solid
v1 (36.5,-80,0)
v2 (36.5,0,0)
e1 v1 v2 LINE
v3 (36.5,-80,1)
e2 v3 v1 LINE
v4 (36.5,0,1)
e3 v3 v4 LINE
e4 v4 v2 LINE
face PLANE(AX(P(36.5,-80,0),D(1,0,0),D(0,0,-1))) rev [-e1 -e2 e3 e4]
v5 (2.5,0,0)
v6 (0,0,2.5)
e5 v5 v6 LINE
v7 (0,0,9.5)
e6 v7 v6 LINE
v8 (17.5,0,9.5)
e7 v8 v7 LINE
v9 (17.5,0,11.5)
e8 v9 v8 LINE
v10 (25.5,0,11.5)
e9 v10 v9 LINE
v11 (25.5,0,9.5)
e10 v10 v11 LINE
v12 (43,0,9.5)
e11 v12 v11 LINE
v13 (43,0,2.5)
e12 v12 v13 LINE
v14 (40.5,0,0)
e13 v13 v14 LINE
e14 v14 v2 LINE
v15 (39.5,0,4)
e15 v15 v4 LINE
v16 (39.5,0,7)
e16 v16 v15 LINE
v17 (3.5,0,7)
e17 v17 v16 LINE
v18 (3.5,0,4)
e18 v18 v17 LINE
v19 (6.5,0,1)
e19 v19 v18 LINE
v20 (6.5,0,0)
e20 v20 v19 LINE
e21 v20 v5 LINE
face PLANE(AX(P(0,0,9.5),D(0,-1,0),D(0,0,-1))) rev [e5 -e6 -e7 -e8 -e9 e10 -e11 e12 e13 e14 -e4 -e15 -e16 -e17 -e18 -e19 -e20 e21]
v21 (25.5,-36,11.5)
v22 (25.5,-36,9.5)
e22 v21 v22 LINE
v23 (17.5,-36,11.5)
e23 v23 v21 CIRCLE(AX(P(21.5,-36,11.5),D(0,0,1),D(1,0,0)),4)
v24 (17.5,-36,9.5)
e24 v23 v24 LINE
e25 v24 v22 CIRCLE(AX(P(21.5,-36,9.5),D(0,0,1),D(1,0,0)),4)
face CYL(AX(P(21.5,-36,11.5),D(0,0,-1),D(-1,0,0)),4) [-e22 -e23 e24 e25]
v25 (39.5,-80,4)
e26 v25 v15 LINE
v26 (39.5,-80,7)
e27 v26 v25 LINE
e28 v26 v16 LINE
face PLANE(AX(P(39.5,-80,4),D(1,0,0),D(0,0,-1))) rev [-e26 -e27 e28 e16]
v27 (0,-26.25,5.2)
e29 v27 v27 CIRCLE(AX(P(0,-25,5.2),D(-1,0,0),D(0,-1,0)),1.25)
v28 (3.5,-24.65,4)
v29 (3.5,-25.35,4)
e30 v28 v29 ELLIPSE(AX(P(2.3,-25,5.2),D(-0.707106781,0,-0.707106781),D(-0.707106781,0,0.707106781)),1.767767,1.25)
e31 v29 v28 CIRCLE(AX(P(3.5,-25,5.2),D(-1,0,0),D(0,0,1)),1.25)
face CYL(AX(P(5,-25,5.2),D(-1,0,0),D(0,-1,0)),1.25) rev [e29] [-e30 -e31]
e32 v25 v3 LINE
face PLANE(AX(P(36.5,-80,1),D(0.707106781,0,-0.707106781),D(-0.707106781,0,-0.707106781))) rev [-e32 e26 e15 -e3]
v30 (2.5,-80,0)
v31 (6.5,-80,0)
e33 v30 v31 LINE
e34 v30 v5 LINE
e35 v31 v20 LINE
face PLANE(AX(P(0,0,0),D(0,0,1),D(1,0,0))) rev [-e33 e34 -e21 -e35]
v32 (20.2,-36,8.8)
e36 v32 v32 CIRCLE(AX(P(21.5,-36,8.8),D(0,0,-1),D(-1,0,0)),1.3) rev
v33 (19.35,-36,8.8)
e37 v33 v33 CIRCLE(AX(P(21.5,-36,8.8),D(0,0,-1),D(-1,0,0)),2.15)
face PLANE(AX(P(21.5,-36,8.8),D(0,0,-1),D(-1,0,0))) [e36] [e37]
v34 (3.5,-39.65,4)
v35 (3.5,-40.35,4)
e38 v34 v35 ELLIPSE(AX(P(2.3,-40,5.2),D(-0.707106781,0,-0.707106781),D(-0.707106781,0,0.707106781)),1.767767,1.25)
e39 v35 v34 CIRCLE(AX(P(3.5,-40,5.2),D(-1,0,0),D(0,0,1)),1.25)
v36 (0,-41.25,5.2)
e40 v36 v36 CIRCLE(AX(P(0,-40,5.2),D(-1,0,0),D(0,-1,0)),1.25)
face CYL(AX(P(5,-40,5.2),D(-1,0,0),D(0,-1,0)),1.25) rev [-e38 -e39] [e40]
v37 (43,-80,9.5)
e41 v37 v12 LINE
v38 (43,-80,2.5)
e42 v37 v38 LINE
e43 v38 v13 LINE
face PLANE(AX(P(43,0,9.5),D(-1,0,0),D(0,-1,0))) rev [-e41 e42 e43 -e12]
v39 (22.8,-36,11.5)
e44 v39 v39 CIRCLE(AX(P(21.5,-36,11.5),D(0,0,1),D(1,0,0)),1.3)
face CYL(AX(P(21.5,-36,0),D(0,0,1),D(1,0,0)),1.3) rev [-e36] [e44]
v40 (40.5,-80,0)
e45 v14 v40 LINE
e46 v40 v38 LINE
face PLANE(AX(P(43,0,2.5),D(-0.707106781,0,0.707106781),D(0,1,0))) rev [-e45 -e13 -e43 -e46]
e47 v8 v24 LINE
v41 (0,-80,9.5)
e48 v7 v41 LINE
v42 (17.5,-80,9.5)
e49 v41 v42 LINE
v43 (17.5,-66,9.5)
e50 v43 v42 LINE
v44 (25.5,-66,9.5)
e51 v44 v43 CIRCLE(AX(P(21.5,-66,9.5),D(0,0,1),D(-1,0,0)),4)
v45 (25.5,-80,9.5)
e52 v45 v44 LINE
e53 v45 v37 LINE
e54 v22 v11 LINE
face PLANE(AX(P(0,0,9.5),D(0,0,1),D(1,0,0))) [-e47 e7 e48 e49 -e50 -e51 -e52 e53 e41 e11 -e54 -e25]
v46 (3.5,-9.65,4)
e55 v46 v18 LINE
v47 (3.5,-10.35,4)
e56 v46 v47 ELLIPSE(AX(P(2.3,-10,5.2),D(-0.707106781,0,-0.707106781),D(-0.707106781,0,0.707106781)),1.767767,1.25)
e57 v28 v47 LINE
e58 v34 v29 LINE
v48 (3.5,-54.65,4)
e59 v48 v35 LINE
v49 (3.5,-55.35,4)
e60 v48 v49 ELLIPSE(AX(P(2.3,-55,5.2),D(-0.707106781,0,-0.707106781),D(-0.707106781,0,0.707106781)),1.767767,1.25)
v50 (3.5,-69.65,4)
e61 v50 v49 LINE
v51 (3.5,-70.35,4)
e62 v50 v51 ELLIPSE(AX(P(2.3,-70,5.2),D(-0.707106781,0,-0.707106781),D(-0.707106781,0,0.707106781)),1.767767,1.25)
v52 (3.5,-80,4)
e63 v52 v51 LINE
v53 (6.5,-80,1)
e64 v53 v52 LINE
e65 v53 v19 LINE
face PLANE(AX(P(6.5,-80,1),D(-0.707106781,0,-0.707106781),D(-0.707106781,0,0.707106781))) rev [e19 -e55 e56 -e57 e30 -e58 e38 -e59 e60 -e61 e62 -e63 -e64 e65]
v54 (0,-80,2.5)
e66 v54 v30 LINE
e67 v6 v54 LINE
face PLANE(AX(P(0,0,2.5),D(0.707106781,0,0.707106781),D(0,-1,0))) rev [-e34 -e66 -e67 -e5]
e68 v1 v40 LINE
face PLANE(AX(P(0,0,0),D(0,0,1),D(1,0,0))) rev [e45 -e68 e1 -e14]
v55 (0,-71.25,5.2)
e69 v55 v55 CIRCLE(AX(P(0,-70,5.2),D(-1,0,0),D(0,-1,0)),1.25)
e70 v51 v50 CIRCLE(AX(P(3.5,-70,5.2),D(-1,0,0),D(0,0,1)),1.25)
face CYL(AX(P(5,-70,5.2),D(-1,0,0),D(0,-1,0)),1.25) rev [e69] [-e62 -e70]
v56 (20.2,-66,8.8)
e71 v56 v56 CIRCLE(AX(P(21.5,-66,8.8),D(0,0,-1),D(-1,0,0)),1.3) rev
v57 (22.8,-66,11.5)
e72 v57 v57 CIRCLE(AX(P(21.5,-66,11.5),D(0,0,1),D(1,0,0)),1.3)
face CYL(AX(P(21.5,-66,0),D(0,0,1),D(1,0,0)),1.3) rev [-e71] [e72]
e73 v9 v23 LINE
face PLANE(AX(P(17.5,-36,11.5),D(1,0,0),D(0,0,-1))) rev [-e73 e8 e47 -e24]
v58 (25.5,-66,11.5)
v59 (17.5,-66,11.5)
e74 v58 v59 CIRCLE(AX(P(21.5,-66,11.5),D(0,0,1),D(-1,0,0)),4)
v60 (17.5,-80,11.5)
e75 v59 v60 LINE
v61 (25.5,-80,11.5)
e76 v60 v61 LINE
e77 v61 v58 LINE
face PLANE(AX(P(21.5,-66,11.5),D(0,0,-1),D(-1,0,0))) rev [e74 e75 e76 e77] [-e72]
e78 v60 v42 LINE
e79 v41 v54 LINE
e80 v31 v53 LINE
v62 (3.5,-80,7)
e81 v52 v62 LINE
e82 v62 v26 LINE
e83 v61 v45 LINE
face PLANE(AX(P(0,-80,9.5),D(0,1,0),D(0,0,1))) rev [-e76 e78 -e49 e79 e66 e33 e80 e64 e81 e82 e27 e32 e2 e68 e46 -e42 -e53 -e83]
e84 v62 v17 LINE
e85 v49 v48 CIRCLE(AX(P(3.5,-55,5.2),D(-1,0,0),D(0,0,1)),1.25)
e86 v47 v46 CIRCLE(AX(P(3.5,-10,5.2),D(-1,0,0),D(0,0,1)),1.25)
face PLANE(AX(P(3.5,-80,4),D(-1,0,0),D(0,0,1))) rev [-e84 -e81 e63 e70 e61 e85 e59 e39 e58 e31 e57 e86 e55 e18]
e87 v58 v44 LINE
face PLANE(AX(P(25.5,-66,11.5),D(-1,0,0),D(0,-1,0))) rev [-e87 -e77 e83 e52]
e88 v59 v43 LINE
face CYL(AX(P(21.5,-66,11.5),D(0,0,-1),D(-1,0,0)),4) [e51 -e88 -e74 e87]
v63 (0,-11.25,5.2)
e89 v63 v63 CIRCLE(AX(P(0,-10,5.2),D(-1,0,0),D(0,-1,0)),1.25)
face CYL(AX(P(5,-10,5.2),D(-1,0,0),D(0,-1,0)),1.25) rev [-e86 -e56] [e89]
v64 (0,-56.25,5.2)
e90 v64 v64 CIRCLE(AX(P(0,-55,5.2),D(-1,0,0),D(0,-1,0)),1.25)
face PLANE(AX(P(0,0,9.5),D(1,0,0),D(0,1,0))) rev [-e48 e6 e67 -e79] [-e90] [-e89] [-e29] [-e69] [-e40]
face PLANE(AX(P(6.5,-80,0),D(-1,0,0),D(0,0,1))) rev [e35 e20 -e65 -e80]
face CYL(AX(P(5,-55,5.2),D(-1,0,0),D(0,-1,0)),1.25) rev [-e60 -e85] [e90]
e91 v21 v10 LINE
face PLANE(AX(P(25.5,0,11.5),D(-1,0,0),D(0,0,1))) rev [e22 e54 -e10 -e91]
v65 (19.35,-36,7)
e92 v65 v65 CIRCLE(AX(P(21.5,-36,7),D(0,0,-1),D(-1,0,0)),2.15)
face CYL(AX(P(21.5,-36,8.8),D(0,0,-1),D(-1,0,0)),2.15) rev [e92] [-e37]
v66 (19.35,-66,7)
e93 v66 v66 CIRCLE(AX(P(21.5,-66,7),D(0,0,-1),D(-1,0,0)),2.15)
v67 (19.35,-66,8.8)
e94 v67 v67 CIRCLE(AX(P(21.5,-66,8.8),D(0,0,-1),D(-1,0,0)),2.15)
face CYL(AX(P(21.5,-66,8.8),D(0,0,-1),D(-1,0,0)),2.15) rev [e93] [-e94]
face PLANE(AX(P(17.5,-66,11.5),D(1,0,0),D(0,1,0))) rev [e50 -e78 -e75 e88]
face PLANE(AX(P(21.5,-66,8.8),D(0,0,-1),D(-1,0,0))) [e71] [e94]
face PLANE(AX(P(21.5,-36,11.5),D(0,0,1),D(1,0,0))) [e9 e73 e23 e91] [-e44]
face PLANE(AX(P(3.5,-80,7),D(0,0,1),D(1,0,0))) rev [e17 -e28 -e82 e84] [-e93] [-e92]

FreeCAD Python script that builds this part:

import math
import FreeCAD as App
import Part
import Sketcher


def edges_at(feature, points):
    """Names of the edges that pass closest to the given points."""
    edges = feature.Shape.Edges
    near = lambda p: min(range(len(edges)), key=lambda i: edges[i].distToShape(Part.Vertex(*p))[0])
    return sorted({f"Edge{near(p) + 1}" for p in points})


def add_polygon(sketch, points):
    """Adds a closed chain of lines whose ends are joined by coincident constraints."""
    first, n = sketch.GeometryCount, len(points)
    for a, b in zip(points, points[1:] + points[:1]):
        sketch.addGeometry(Part.LineSegment(App.Vector(*a, 0), App.Vector(*b, 0)), False)
    for i in range(n):
        sketch.addConstraint(Sketcher.Constraint("Coincident", first + i, 2, first + (i + 1) % n, 1))

doc = App.newDocument("Part")
body = doc.addObject("PartDesign::Body", "Body")

# Sketch on XY plane
sketch1 = body.newObject("Sketcher::SketchObject", "Sketch")
sketch1.AttachmentSupport = (doc.getObject("XY_Plane"), [""])
sketch1.MapMode = "FlatFace"
add_polygon(sketch1, [(0, 0), (0, -80), (43, -80), (43, 0)])  # lines 0-3
sketch1.addConstraint([
    Sketcher.Constraint("Vertical", 0),
    Sketcher.Constraint("Horizontal", 1),
    Sketcher.Constraint("Vertical", 2),
    Sketcher.Constraint("Horizontal", 3),
    Sketcher.Constraint("Coincident", 3, 2, -1, 1),
    Sketcher.Constraint("DistanceX", 1, 1, 1, 2, 43.0),
    Sketcher.Constraint("DistanceY", 0, 2, 0, 1, 80.0),
])
pad1 = body.newObject("PartDesign::Pad", "Pad")
pad1.Profile = sketch1
pad1.Length = 9.5

# Sketch on XZ plane
sketch2 = body.newObject("Sketcher::SketchObject", "Sketch001")
sketch2.AttachmentSupport = (doc.getObject("XZ_Plane"), [""])
sketch2.MapMode = "FlatFace"
add_polygon(sketch2, [(6.5, 0), (6.5, 1), (3.5, 4), (3.5, 7), (39.5, 7), (39.5, 4), (36.5, 1), (36.5, 0)])  # lines 0-7
sketch2.addConstraint([
    Sketcher.Constraint("Vertical", 0),
    Sketcher.Constraint("Vertical", 2),
    Sketcher.Constraint("Horizontal", 3),
    Sketcher.Constraint("Vertical", 4),
    Sketcher.Constraint("Vertical", 6),
    Sketcher.Constraint("Horizontal", 7),
    Sketcher.Constraint("PointOnObject", 6, 2, -1),
    Sketcher.Constraint("Perpendicular", 1, 5),
    Sketcher.Constraint("Horizontal", 1, 2, 4, 2),
    Sketcher.Constraint("Horizontal", 0, 2, 5, 2),
    Sketcher.Constraint("Equal", 1, 5),
    Sketcher.Constraint("DistanceX", 3, 1, 3, 2, 36.0),
    Sketcher.Constraint("DistanceX", 7, 2, 7, 1, 30.0),
    Sketcher.Constraint("DistanceY", 0, 1, 0, 2, 1.0),
    Sketcher.Constraint("DistanceY", 2, 1, 2, 2, 3.0),
    Sketcher.Constraint("DistanceX", -1, 1, 0, 2, 6.5),
])
pocket1 = body.newObject("PartDesign::Pocket", "Pocket")
pocket1.Profile = sketch2
pocket1.Type = "ThroughAll"
pocket1.Reversed = True
doc.recompute()

chamfer = body.newObject("PartDesign::Chamfer", "Chamfer")
chamfer.Base = (pocket1, edges_at(pocket1, [(43, -40, 0), (0, -40, 0)]))
chamfer.Size = 2.5

# Sketch on XY plane
sketch3 = body.newObject("Sketcher::SketchObject", "Sketch002")
sketch3.AttachmentSupport = (doc.getObject("XY_Plane"), [""])
sketch3.MapMode = "FlatFace"
sketch3.AttachmentOffset = App.Placement(App.Vector(0, 0, 9.5), App.Rotation())
sketch3.addGeometry([
    Part.LineSegment(App.Vector(17.5, -80, 0), App.Vector(25.5, -80, 0)),  # 0
    Part.LineSegment(App.Vector(25.5, -80, 0), App.Vector(25.5, -66, 0)),  # 1
    Part.ArcOfCircle(Part.Circle(App.Vector(21.5, -66, 0), App.Vector(0, 0, 1), 4), math.radians(0), math.radians(180)),  # 2
    Part.LineSegment(App.Vector(17.5, -66, 0), App.Vector(17.5, -80, 0)),  # 3
    Part.LineSegment(App.Vector(17.5, 0, 0), App.Vector(17.5, -36, 0)),  # 4
    Part.ArcOfCircle(Part.Circle(App.Vector(21.5, -36, 0), App.Vector(0, 0, 1), 4), math.radians(180), math.radians(360)),  # 5
    Part.LineSegment(App.Vector(25.5, -36, 0), App.Vector(25.5, 0, 0)),  # 6
    Part.LineSegment(App.Vector(25.5, 0, 0), App.Vector(17.5, 0, 0)),  # 7
], False)
sketch3.addConstraint([
    Sketcher.Constraint("Coincident", 0, 2, 1, 1),
    Sketcher.Constraint("Tangent", 1, 2, 2, 1),
    Sketcher.Constraint("Tangent", 2, 2, 3, 1),
    Sketcher.Constraint("Coincident", 3, 2, 0, 1),
    Sketcher.Constraint("Tangent", 4, 2, 5, 1),
    Sketcher.Constraint("Tangent", 5, 2, 6, 1),
    Sketcher.Constraint("Coincident", 6, 2, 7, 1),
    Sketcher.Constraint("Coincident", 7, 2, 4, 1),
    Sketcher.Constraint("Horizontal", 0),
    Sketcher.Constraint("Vertical", 1),
    Sketcher.Constraint("Vertical", 3),
    Sketcher.Constraint("Vertical", 4),
    Sketcher.Constraint("Vertical", 6),
    Sketcher.Constraint("Horizontal", 7),
    Sketcher.Constraint("Equal", 2, 5),
    Sketcher.Constraint("PointOnObject", 6, 2, -1),
    Sketcher.Constraint("Vertical", 2, 3, 5, 3),
    Sketcher.Constraint("Radius", 2, 4.0),
    Sketcher.Constraint("DistanceY", 1, 1, 1, 2, 14.0),
    Sketcher.Constraint("DistanceY", 4, 2, 4, 1, 36.0),
    Sketcher.Constraint("DistanceY", 2, 3, -1, 1, 66.0),
    Sketcher.Constraint("DistanceX", -1, 1, 2, 3, 21.5),
])
pad2 = body.newObject("PartDesign::Pad", "Pad001")
pad2.Profile = sketch3
pad2.Length = 2

# Sketch on XY plane
sketch4 = body.newObject("Sketcher::SketchObject", "Sketch003")
sketch4.AttachmentSupport = (doc.getObject("XY_Plane"), [""])
sketch4.MapMode = "FlatFace"
sketch4.AttachmentOffset = App.Placement(App.Vector(0, 0, 11.5), App.Rotation())
sketch4.addGeometry([
    Part.Circle(App.Vector(21.5, -36, 0), App.Vector(0, 0, 1), 1.3),
    Part.Circle(App.Vector(21.5, -66, 0), App.Vector(0, 0, 1), 1.3),
], False)
sketch4.addConstraint([
    Sketcher.Constraint("Equal", 0, 1),
    Sketcher.Constraint("Vertical", 0, 3, 1, 3),
    Sketcher.Constraint("Diameter", 0, 2.6),
    Sketcher.Constraint("DistanceY", 0, 3, -1, 1, 36.0),
    Sketcher.Constraint("DistanceY", 1, 3, -1, 1, 66.0),
    Sketcher.Constraint("DistanceX", -1, 1, 0, 3, 21.5),
])
pocket2 = body.newObject("PartDesign::Pocket", "Pocket001")
pocket2.Profile = sketch4
pocket2.Type = "ThroughAll"

# Sketch on XY plane
sketch5 = body.newObject("Sketcher::SketchObject", "Sketch004")
sketch5.AttachmentSupport = (doc.getObject("XY_Plane"), [""])
sketch5.MapMode = "FlatFace"
sketch5.AttachmentOffset = App.Placement(App.Vector(0, 0, 7), App.Rotation())
sketch5.addGeometry([
    Part.Circle(App.Vector(21.5, -36, 0), App.Vector(0, 0, 1), 2.15),
    Part.Circle(App.Vector(21.5, -66, 0), App.Vector(0, 0, 1), 2.15),
], False)
sketch5.addConstraint([
    Sketcher.Constraint("Equal", 0, 1),
    Sketcher.Constraint("Vertical", 0, 3, 1, 3),
    Sketcher.Constraint("Diameter", 0, 4.3),
    Sketcher.Constraint("DistanceY", 0, 3, -1, 1, 36.0),
    Sketcher.Constraint("DistanceY", 1, 3, -1, 1, 66.0),
    Sketcher.Constraint("DistanceX", -1, 1, 0, 3, 21.5),
])
pocket3 = body.newObject("PartDesign::Pocket", "Pocket002")
pocket3.Profile = sketch5
pocket3.Length = 1.8
pocket3.Reversed = True

# Sketch on YZ plane
sketch6 = body.newObject("Sketcher::SketchObject", "Sketch005")
sketch6.AttachmentSupport = (doc.getObject("YZ_Plane"), [""])
sketch6.MapMode = "FlatFace"
sketch6.addGeometry([
    Part.Circle(App.Vector(-10, 5.2, 0), App.Vector(0, 0, 1), 1.25),  # 0
    Part.Circle(App.Vector(-25, 5.2, 0), App.Vector(0, 0, 1), 1.25),  # 1
    Part.Circle(App.Vector(-40, 5.2, 0), App.Vector(0, 0, 1), 1.25),  # 2
    Part.Circle(App.Vector(-55, 5.2, 0), App.Vector(0, 0, 1), 1.25),  # 3
    Part.Circle(App.Vector(-70, 5.2, 0), App.Vector(0, 0, 1), 1.25),  # 4
], False)
sketch6.addConstraint([
    Sketcher.Constraint("Equal", 0, 1),
    Sketcher.Constraint("Equal", 1, 2),
    Sketcher.Constraint("Equal", 2, 3),
    Sketcher.Constraint("Equal", 3, 4),
    Sketcher.Constraint("Horizontal", 0, 3, 1, 3),
    Sketcher.Constraint("Horizontal", 1, 3, 2, 3),
    Sketcher.Constraint("Horizontal", 2, 3, 3, 3),
    Sketcher.Constraint("Horizontal", 3, 3, 4, 3),
    Sketcher.Constraint("Diameter", 0, 2.5),
    Sketcher.Constraint("DistanceX", 0, 3, -1, 1, 10.0),
    Sketcher.Constraint("DistanceX", 1, 3, -1, 1, 25.0),
    Sketcher.Constraint("DistanceX", 2, 3, -1, 1, 40.0),
    Sketcher.Constraint("DistanceX", 3, 3, -1, 1, 55.0),
    Sketcher.Constraint("DistanceX", 4, 3, -1, 1, 70.0),
    Sketcher.Constraint("DistanceY", -1, 1, 0, 3, 5.2),
])
pocket4 = body.newObject("PartDesign::Pocket", "Pocket003")
pocket4.Profile = sketch6
pocket4.Length = 5
pocket4.Reversed = True

doc.recompute()
